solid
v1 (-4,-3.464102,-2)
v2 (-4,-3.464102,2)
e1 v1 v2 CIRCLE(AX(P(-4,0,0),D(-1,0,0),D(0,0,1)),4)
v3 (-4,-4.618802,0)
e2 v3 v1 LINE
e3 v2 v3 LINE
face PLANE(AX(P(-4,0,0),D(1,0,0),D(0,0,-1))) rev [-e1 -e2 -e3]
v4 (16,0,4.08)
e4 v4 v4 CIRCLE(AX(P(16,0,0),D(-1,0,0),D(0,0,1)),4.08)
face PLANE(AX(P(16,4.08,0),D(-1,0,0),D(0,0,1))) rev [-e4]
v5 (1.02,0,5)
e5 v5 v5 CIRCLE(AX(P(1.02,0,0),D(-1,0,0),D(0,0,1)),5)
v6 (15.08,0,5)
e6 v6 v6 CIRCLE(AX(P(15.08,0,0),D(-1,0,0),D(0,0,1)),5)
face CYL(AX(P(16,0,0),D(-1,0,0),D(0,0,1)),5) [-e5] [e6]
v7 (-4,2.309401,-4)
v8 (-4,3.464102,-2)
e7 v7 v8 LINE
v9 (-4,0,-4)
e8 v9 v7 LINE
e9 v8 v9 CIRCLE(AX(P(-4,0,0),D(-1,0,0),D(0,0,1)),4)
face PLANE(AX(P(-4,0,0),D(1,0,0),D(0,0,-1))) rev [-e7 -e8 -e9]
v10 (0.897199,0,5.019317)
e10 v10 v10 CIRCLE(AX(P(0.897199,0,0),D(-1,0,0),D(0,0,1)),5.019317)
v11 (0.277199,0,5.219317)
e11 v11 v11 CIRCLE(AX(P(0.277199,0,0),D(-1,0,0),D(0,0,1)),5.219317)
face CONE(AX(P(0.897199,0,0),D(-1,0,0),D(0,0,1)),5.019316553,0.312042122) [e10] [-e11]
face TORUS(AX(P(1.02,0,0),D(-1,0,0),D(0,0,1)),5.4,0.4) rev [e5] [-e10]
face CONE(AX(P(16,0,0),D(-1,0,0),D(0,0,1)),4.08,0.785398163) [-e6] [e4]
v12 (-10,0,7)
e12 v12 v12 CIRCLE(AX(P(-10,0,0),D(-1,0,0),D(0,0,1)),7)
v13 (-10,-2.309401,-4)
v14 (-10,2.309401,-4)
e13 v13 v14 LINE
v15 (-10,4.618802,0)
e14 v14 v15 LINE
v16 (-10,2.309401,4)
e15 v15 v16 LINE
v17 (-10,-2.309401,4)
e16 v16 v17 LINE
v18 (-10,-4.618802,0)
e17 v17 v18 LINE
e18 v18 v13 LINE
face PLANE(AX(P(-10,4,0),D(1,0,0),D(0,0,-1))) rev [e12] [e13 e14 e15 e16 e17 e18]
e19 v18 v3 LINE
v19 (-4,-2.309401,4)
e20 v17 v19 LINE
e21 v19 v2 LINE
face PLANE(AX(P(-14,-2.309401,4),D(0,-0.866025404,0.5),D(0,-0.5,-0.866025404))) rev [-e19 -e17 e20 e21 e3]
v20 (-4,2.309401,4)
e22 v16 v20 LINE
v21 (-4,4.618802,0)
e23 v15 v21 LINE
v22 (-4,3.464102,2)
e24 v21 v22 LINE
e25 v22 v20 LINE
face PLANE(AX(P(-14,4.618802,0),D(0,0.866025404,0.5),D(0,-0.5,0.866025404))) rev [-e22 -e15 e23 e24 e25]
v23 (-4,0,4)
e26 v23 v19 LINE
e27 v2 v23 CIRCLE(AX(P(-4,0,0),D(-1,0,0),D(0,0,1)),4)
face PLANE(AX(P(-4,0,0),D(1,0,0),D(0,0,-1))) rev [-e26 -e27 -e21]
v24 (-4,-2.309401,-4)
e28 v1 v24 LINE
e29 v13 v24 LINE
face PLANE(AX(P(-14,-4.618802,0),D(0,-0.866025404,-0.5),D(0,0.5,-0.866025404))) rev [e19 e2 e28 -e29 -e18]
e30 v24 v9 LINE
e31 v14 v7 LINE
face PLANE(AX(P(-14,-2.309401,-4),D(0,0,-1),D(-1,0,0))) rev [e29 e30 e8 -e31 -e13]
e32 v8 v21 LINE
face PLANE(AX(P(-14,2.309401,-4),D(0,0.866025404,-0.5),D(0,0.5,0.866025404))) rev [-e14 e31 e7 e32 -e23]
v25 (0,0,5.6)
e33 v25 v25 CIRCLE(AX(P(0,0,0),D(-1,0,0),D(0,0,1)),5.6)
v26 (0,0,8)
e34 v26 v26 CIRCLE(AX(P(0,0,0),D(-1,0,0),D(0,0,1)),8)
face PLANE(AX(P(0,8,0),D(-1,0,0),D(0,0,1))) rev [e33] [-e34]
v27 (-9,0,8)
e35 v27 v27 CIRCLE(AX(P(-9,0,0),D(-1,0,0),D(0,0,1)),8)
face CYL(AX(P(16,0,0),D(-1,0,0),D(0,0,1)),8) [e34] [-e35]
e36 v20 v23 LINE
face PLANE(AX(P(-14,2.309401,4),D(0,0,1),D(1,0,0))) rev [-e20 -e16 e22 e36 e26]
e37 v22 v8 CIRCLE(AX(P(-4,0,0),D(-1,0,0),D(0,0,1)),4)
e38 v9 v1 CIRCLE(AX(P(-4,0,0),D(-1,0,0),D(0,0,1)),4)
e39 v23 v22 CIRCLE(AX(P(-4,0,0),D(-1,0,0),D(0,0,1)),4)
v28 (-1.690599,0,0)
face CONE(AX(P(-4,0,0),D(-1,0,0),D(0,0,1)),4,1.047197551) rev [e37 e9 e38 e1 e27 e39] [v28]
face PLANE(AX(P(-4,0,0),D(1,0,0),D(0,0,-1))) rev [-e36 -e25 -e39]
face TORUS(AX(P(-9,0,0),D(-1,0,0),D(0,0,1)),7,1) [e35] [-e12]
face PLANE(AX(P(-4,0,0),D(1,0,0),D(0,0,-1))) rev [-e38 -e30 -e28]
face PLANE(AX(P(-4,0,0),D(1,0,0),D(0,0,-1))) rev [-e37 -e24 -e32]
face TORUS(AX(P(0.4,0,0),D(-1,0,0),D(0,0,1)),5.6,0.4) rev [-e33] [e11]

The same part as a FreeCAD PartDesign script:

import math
import FreeCAD as App
import Part
import Sketcher
from FreeCAD import Vector
Q = App.Units.Quantity


def add_polygon(sketch, points):
    """Adds a closed chain of lines whose ends are joined by coincident constraints."""
    first, n = sketch.GeometryCount, len(points)
    for a, b in zip(points, points[1:] + points[:1]):
        sketch.addGeometry(Part.LineSegment(App.Vector(*a, 0), App.Vector(*b, 0)), False)
    for i in range(n):
        sketch.addConstraint(Sketcher.Constraint("Coincident", first + i, 2, first + (i + 1) % n, 1))

doc = App.newDocument("Part")
params = doc.addObject("Spreadsheet::Sheet", "Params")
for row, (alias, value) in enumerate([
    ("sketch1_radius", "1 mm"),
    ("sketch1_radius2", "0.4 mm"),
    ("sketch1_width", "9 mm"),
    ("sketch1_width2", "6 mm"),
    ("sketch1_height", "3 mm"),
    ("revolution_angle", "360 deg"),
    ("pocket1_length", "10 mm"),
    ("sketch3_diameter", "12 mm"),
    ("pad1_length", "5 mm"),
], start=1):
    params.set(f"A{row}", alias)
    params.set(f"B{row}", "=" + value)
    params.setAlias(f"B{row}", alias)

body = doc.addObject("PartDesign::Body", "Body")

sketch1 = body.newObject("Sketcher::SketchObject", "Sketch")
sketch1.AttachmentSupport = (doc.getObject("XY_Plane"), [""])
sketch1.MapMode = "FlatFace"
sketch1.addGeometry(Part.LineSegment(Vector(-4, 4, 0), Vector(-1.69, 0, 0)), False)
sketch1.addGeometry(Part.LineSegment(Vector(-1.69, 0, 0), Vector(16, 0, 0)), False)
sketch1.addGeometry(Part.LineSegment(Vector(16, 0, 0), Vector(16, 4.08, 0)), False)
sketch1.addGeometry(Part.LineSegment(Vector(16, 4.08, 0), Vector(15.08, 5, 0)), False)
sketch1.addGeometry(Part.LineSegment(Vector(15.08, 5, 0), Vector(1.02, 5, 0)), False)
sketch1.addGeometry(Part.ArcOfCircle(Part.Circle(Vector(1.02, 5.4, 0), Vector(0, 0, 1), 0.4), math.radians(-107.88), math.radians(-90)), False)
sketch1.addGeometry(Part.LineSegment(Vector(0.9, 5.02, 0), Vector(0.28, 5.22, 0)), False)
sketch1.addGeometry(Part.ArcOfCircle(Part.Circle(Vector(0.4, 5.6, 0), Vector(0, 0, 1), 0.4), math.radians(-180), math.radians(-108)), False)
sketch1.addGeometry(Part.LineSegment(Vector(0, 5.6, 0), Vector(0, 8, 0)), False)
sketch1.addGeometry(Part.LineSegment(Vector(0, 8, 0), Vector(-9, 8, 0)), False)
sketch1.addGeometry(Part.ArcOfCircle(Part.Circle(Vector(-9, 7, 0), Vector(0, 0, 1), 1), math.radians(90), math.radians(180)), False)
sketch1.addGeometry(Part.LineSegment(Vector(-10, 7, 0), Vector(-10, 4, 0)), False)
sketch1.addGeometry(Part.LineSegment(Vector(-10, 4, 0), Vector(-4, 4, 0)), False)
sketch1.addConstraint(Sketcher.Constraint("Coincident", 0, 2, 1, 1))
sketch1.addConstraint(Sketcher.Constraint("Coincident", 1, 2, 2, 1))
sketch1.addConstraint(Sketcher.Constraint("Coincident", 2, 2, 3, 1))
sketch1.addConstraint(Sketcher.Constraint("Coincident", 3, 2, 4, 1))
sketch1.addConstraint(Sketcher.Constraint("Tangent", 4, 2, 5, 2))
sketch1.addConstraint(Sketcher.Constraint("Tangent", 5, 1, 6, 1))
sketch1.addConstraint(Sketcher.Constraint("Tangent", 6, 2, 7, 2))
sketch1.addConstraint(Sketcher.Constraint("Tangent", 7, 1, 8, 1))
sketch1.addConstraint(Sketcher.Constraint("Coincident", 8, 2, 9, 1))
sketch1.addConstraint(Sketcher.Constraint("Tangent", 9, 2, 10, 1))
sketch1.addConstraint(Sketcher.Constraint("Tangent", 10, 2, 11, 1))
sketch1.addConstraint(Sketcher.Constraint("Coincident", 11, 2, 12, 1))
sketch1.addConstraint(Sketcher.Constraint("Coincident", 12, 2, 0, 1))
sketch1.addConstraint(Sketcher.Constraint("Horizontal", 1))
sketch1.addConstraint(Sketcher.Constraint("Vertical", 2))
sketch1.addConstraint(Sketcher.Constraint("Horizontal", 4))
sketch1.addConstraint(Sketcher.Constraint("Vertical", 8))
sketch1.addConstraint(Sketcher.Constraint("Horizontal", 9))
sketch1.addConstraint(Sketcher.Constraint("Vertical", 11))
sketch1.addConstraint(Sketcher.Constraint("Horizontal", 12))
sketch1.addConstraint(Sketcher.Constraint("Equal", 5, 7))
sketch1.addConstraint(Sketcher.Constraint("PointOnObject", 0, 2, -1))
sketch1.addConstraint(Sketcher.Constraint("PointOnObject", 7, 1, -2))
sketch1.addConstraint(Sketcher.Constraint("Radius", 10, Q("1 mm")))
sketch1.addConstraint(Sketcher.Constraint("Radius", 5, Q("0.4 mm")))
sketch1.addConstraint(Sketcher.Constraint("DistanceX", 9, 2, 9, 1, Q("9 mm")))
sketch1.addConstraint(Sketcher.Constraint("DistanceX", 12, 1, 12, 2, Q("6 mm")))
sketch1.addConstraint(Sketcher.Constraint("DistanceY", 11, 2, 11, 1, Q("3 mm")))
sketch1.addConstraint(Sketcher.Constraint("Angle", 0, Q("-60 deg")))
sketch1.addConstraint(Sketcher.Constraint("Angle", 3, Q("135 deg")))
sketch1.addConstraint(Sketcher.Constraint("DistanceY", 8, 1, 8, 2, Q("2.4 mm")))
sketch1.addConstraint(Sketcher.Constraint("DistanceY", -1, 1, 10, 3, Q("7 mm")))
sketch1.addConstraint(Sketcher.Constraint("DistanceX", -1, 1, 1, 2, Q("16 mm")))
sketch1.addConstraint(Sketcher.Constraint("DistanceY", -1, 1, 3, 2, Q("5 mm")))
sketch1.addConstraint(Sketcher.Constraint("DistanceX", 4, 2, 4, 1, Q("14.06 mm")))
sketch1.addConstraint(Sketcher.Constraint("DistanceY", 2, 1, 2, 2, Q("4.08 mm")))
sketch1.setExpression("Constraints[23]", "Params.sketch1_radius")
sketch1.setExpression("Constraints[24]", "Params.sketch1_radius2")
sketch1.setExpression("Constraints[25]", "Params.sketch1_width")
sketch1.setExpression("Constraints[26]", "Params.sketch1_width2")
sketch1.setExpression("Constraints[27]", "Params.sketch1_height")
revolution = body.newObject("PartDesign::Revolution", "Revolution")
revolution.Profile = sketch1
revolution.ReferenceAxis = (sketch1, ["H_Axis"])
revolution.setExpression("Angle", "Params.revolution_angle")

sketch2 = body.newObject("Sketcher::SketchObject", "Sketch001")
sketch2.AttachmentSupport = (doc.getObject("YZ_Plane"), [""])
sketch2.MapMode = "FlatFace"
sketch2.AttachmentOffset = App.Placement(Vector(0, 0, -4), App.Rotation())
add_polygon(sketch2, [(2.3, 4), (-2.3, 4), (-4.6, 0), (-2.3, -4), (2.3, -4), (4.6, 0)])
sketch2.addConstraint(Sketcher.Constraint("Horizontal", 0))
sketch2.addConstraint(Sketcher.Constraint("Horizontal", 3))
sketch2.addConstraint(Sketcher.Constraint("Symmetric", 0, 2, 3, 2, -1, 1))
sketch2.addConstraint(Sketcher.Constraint("Symmetric", 1, 2, 4, 2, -1, 1))
sketch2.addConstraint(Sketcher.Constraint("PointOnObject", 1, 2, -1))
sketch2.addConstraint(Sketcher.Constraint("Parallel", 2, 5))
sketch2.addConstraint(Sketcher.Constraint("Vertical", 0, 2, 2, 2))
sketch2.addConstraint(Sketcher.Constraint("Angle", 1, Q("-120 deg")))
sketch2.addConstraint(Sketcher.Constraint("DistanceY", -1, 1, 0, 2, Q("4 mm")))
sketch2.addConstraint(Sketcher.Constraint("DistanceX", 0, 2, -1, 1, Q("2.309401 mm")))
pocket1 = body.newObject("PartDesign::Pocket", "Pocket")
pocket1.Profile = sketch2
pocket1.setExpression("Length", "Params.pocket1_length")
body2 = doc.addObject("PartDesign::Body", "Body001")

sketch3 = body2.newObject("Sketcher::SketchObject", "Sketch002")
sketch3.AttachmentSupport = (doc.getObject("YZ_Plane001"), [""])
sketch3.MapMode = "FlatFace"
sketch3.addGeometry(Part.Circle(Vector(0, 0, 0), Vector(0, 0, 1), 6), False)
sketch3.addConstraint(Sketcher.Constraint("Coincident", 0, 3, -1, 1))
sketch3.addConstraint(Sketcher.Constraint("Diameter", 0, Q("12 mm")))
sketch3.setExpression("Constraints[1]", "Params.sketch3_diameter")
pad1 = body2.newObject("PartDesign::Pad", "Pad")
pad1.Profile = sketch3
pad1.setExpression("Length", "Params.pad1_length")
pad1.Reversed = True
body2.Visibility = False

doc.recompute()
